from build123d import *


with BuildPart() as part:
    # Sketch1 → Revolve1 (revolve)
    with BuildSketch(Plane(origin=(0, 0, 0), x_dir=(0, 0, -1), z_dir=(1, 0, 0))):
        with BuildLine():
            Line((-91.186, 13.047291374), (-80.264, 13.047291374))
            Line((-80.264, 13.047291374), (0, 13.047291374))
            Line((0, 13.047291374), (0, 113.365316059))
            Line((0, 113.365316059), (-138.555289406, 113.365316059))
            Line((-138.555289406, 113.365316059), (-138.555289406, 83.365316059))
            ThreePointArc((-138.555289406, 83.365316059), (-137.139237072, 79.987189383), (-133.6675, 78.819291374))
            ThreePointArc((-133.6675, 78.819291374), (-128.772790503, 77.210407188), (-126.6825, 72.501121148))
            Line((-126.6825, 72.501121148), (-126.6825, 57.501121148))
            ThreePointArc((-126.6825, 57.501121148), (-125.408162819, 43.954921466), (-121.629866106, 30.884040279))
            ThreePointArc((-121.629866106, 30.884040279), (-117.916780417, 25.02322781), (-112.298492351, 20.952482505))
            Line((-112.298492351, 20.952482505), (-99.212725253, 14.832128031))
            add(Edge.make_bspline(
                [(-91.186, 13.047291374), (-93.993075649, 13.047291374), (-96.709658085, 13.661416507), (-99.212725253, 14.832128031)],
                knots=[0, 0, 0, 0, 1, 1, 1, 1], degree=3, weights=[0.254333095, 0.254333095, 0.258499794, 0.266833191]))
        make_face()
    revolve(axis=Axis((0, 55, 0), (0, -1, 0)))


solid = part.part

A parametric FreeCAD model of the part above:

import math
import FreeCAD as App
import Part
import Sketcher
Q = App.Units.Quantity

doc = App.newDocument("Part")
body = doc.addObject("PartDesign::Body", "Body")

# Sketch on YZ plane
sketch1 = doc.addObject("Sketcher::SketchObject", "Sketch")
body.addObject(sketch1)
sketch1.AttachmentSupport = (doc.YZ_Plane, [""])
sketch1.MapMode = "FlatFace"
sketch1.addGeometry([
    Part.LineSegment(App.Vector(13.047291, 91.186, 0), App.Vector(13.047291, 0, 0)),  # 0
    Part.LineSegment(App.Vector(13.047291, 0, 0), App.Vector(113.365316, 0, 0)),  # 1
    Part.LineSegment(App.Vector(113.365316, 0, 0), App.Vector(113.365316, 138.555289, 0)),  # 2
    Part.LineSegment(App.Vector(113.365316, 138.555289, 0), App.Vector(83.365316, 138.555289, 0)),  # 3
    Part.ArcOfCircle(Part.Circle(App.Vector(83.242011, 134.112, 0), App.Vector(0, 0, 1), 4.445), math.radians(88.410395), math.radians(185.73917)),  # 4
    Part.ArcOfCircle(Part.Circle(App.Vector(72.501121, 133.0325, 0), App.Vector(0, 0, 1), 6.35), math.radians(-90), math.radians(5.73917)),  # 5
    Part.LineSegment(App.Vector(72.501121, 126.6825, 0), App.Vector(57.501121, 126.6825, 0)),  # 6
    Part.ArcOfCircle(Part.Circle(App.Vector(57.501121, 54.047304, 0), App.Vector(0, 0, 1), 72.635196), math.radians(90), math.radians(111.496772)),  # 7
    Part.ArcOfCircle(Part.Circle(App.Vector(37.631536, 104.497519, 0), App.Vector(0, 0, 1), 18.413202), math.radians(111.496772), math.radians(154.934001)),  # 8
    Part.LineSegment(App.Vector(20.952483, 112.298492, 0), App.Vector(14.832128, 99.212725, 0)),  # 9
    Part.BSplineCurve([App.Vector(13.047291, 91.186, 0), App.Vector(13.047291, 93.993076, 0), App.Vector(13.661417, 96.709658, 0), App.Vector(14.832128, 99.212725, 0)], [4, 4], [0, 1], False, 3, [0.254333095, 0.254333095, 0.258499794, 0.266833191], False),  # 10
], False)
sketch1.addConstraint([
    Sketcher.Constraint("Block", 10),
    Sketcher.Constraint("Coincident", 0, 2, 1, 1),
    Sketcher.Constraint("Coincident", 1, 2, 2, 1),
    Sketcher.Constraint("Coincident", 2, 2, 3, 1),
    Sketcher.Constraint("Coincident", 3, 2, 4, 1),
    Sketcher.Constraint("Tangent", 4, 2, 5, 2),
    Sketcher.Constraint("Tangent", 5, 1, 6, 1),
    Sketcher.Constraint("Tangent", 6, 2, 7, 1),
    Sketcher.Constraint("Tangent", 7, 2, 8, 1),
    Sketcher.Constraint("Tangent", 8, 2, 9, 1),
    Sketcher.Constraint("Coincident", 9, 2, 10, 2),
    Sketcher.Constraint("Coincident", 10, 1, 0, 1),
    Sketcher.Constraint("Vertical", 0),
    Sketcher.Constraint("Horizontal", 1),
    Sketcher.Constraint("Vertical", 2),
    Sketcher.Constraint("Horizontal", 3),
    Sketcher.Constraint("Horizontal", 6),
    Sketcher.Constraint("PointOnObject", 0, 2, -1),
    Sketcher.Constraint("Radius", 5, Q("0.25 in")),
    Sketcher.Constraint("Radius", 4, Q("0.175 in")),
    Sketcher.Constraint("DistanceY", -1, 1, 4, 3, Q("5.28 in")),
    Sketcher.Constraint("DistanceY", 5, 3, 4, 2, Q("0.025 in")),
    Sketcher.Constraint("DistanceX", 3, 2, 3, 1, 30.0),
    Sketcher.Constraint("DistanceX", 6, 2, 6, 1, 15.0),
    Sketcher.Constraint("Radius", 7, 72.635196),
    Sketcher.Constraint("Radius", 8, 18.413202),
    Sketcher.Constraint("DistanceY", 2, 1, 2, 2, 138.555289),
    Sketcher.Constraint("DistanceX", 1, 1, 1, 2, 100.318025),
    Sketcher.Constraint("DistanceY", -1, 1, 8, 3, 104.497519),
])
revolution = doc.addObject("PartDesign::Revolution", "Revolution")
body.addObject(revolution)
revolution.Profile = sketch1
revolution.ReferenceAxis = (sketch1, ["H_Axis"])
revolution.Angle = 360

doc.recompute()
